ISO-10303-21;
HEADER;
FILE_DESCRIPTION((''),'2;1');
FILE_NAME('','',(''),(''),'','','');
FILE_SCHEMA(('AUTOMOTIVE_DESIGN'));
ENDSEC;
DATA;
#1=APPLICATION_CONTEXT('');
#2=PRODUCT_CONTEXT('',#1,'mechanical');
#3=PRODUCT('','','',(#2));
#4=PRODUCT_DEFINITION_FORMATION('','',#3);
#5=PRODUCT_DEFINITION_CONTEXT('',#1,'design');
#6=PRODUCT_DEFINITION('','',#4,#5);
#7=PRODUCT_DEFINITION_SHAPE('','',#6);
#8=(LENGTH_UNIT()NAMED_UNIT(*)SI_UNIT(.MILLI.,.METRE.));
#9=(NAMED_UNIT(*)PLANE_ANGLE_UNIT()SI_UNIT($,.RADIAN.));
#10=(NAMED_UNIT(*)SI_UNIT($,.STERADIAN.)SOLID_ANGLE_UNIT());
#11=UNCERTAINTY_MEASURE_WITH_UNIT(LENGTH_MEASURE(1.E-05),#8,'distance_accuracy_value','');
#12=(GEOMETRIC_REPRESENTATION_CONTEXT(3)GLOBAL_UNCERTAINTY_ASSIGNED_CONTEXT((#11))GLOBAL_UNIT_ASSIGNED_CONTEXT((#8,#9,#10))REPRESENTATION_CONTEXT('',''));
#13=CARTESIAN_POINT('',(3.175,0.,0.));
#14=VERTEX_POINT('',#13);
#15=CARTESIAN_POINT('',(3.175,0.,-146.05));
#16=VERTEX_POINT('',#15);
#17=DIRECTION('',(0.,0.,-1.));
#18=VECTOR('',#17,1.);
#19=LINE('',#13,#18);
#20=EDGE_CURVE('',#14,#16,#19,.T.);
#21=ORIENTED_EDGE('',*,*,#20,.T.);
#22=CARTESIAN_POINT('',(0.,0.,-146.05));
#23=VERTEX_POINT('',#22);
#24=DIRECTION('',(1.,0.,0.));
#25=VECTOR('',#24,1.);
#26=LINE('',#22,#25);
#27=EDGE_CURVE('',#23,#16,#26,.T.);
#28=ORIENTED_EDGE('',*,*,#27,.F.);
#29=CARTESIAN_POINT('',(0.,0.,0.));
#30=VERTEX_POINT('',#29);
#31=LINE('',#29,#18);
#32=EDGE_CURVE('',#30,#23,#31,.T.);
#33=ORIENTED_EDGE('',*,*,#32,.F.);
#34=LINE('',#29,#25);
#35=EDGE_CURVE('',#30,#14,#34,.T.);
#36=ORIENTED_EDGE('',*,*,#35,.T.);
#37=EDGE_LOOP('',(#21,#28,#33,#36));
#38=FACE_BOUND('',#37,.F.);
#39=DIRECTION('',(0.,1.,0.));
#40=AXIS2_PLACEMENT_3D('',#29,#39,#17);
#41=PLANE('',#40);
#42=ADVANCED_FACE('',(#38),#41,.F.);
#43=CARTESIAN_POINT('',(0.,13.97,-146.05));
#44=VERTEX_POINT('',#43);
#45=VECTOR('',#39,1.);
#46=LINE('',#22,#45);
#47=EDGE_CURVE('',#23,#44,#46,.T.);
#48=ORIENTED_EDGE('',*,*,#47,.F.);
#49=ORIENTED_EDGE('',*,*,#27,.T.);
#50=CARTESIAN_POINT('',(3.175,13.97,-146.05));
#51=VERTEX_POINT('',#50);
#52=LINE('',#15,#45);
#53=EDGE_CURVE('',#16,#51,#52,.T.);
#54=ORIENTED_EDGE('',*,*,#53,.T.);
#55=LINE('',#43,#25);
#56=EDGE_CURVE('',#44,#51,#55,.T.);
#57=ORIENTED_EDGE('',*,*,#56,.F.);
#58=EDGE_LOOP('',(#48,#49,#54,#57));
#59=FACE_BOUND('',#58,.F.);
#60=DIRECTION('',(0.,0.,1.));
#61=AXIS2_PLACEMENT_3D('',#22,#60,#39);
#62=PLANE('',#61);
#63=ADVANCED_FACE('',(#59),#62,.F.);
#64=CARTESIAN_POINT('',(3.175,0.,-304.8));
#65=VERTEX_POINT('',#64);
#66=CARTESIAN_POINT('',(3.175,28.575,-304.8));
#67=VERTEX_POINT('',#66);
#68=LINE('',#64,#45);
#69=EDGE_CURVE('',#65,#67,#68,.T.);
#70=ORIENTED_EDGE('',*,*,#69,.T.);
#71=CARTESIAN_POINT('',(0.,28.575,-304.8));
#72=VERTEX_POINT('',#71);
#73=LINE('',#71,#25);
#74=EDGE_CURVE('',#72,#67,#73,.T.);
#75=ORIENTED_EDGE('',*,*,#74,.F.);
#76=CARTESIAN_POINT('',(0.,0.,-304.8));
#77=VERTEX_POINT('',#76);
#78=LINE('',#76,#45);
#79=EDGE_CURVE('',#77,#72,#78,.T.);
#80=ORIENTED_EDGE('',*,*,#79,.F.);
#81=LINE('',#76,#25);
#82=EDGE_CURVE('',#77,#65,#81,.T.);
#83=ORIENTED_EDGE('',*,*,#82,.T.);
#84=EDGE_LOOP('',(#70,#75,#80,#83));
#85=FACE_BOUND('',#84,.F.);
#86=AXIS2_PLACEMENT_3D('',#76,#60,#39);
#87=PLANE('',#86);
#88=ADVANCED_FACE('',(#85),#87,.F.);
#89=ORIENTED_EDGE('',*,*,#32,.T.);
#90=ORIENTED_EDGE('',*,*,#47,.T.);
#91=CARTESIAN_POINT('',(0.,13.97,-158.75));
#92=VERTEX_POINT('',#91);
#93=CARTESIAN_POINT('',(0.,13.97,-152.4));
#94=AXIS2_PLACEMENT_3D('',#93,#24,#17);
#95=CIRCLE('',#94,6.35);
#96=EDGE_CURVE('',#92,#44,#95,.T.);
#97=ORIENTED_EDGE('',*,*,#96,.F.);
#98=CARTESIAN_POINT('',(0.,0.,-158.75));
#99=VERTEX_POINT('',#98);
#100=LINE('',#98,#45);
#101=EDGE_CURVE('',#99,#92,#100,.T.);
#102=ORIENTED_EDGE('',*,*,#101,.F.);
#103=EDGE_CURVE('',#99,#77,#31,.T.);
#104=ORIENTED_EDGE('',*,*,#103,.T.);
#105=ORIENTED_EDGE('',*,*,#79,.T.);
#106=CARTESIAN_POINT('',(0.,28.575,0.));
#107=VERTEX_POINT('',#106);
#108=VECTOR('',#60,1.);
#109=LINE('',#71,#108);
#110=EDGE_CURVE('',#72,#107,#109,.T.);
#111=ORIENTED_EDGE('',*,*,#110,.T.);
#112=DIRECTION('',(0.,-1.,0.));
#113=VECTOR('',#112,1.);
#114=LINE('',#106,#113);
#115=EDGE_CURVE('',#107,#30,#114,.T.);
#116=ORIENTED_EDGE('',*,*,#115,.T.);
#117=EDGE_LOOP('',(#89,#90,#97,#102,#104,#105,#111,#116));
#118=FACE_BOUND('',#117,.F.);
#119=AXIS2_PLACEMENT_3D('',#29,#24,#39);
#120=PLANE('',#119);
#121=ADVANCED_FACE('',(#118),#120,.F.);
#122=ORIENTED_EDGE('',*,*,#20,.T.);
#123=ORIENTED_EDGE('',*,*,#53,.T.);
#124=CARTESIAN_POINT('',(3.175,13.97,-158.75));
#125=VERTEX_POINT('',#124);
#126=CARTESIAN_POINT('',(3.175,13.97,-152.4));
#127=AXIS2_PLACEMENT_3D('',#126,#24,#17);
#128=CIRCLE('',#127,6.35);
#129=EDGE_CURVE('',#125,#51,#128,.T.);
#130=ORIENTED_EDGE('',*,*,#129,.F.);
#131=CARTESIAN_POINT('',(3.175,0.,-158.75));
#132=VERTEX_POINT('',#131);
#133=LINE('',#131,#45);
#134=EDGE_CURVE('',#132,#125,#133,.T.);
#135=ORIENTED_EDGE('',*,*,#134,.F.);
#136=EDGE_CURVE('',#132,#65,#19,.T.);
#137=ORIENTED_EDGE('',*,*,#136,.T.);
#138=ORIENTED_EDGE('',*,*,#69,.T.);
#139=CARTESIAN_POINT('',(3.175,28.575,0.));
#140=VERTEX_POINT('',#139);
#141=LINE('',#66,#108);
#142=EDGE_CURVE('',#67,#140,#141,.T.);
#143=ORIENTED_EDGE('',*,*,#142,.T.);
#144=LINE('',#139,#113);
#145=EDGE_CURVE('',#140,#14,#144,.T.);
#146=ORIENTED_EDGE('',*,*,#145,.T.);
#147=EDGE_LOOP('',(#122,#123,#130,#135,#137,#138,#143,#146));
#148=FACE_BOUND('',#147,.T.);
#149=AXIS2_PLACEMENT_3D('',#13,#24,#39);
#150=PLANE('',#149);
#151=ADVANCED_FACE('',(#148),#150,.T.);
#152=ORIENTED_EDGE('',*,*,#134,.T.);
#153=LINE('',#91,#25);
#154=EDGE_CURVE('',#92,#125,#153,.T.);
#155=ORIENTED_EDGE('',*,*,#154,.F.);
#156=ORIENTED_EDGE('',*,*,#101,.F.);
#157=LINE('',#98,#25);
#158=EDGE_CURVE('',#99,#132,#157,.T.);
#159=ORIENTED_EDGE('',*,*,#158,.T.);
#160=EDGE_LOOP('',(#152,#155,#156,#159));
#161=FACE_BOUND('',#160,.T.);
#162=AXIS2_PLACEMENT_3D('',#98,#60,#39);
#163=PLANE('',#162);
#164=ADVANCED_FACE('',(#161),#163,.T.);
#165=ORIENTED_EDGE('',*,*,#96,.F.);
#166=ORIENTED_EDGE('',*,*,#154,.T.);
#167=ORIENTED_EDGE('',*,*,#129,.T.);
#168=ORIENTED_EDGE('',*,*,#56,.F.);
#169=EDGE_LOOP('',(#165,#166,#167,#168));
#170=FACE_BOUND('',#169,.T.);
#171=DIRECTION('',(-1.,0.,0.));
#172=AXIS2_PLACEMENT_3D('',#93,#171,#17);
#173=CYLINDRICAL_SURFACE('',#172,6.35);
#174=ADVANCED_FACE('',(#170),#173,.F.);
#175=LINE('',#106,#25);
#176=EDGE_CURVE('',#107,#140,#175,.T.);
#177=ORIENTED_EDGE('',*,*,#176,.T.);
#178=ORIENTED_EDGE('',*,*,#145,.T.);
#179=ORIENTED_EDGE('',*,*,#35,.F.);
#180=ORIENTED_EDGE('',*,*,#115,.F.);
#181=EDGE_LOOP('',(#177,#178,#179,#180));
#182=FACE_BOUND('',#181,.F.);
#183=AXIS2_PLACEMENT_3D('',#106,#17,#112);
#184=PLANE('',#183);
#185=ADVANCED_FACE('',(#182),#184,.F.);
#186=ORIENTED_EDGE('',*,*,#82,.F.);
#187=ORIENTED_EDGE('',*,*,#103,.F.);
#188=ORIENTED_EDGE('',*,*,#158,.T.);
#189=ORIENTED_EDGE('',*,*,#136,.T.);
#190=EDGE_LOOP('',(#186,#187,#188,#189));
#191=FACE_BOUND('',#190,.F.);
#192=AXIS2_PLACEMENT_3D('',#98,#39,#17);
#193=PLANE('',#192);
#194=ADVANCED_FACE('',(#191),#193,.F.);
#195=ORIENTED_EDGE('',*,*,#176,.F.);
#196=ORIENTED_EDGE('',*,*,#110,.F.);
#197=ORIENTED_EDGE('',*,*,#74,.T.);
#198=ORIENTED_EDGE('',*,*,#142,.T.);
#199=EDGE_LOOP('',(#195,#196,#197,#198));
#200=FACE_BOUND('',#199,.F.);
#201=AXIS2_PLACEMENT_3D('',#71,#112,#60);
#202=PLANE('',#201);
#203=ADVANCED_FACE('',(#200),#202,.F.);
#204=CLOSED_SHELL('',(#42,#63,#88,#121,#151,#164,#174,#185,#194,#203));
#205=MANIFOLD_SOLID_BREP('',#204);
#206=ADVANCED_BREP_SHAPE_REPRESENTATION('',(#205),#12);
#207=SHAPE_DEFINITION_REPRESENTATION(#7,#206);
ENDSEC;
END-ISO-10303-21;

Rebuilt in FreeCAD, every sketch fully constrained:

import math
import FreeCAD as App
import Part
import Sketcher
from FreeCAD import Vector
Q = App.Units.Quantity

doc = App.newDocument("Part")
body = doc.addObject("PartDesign::Body", "Body")

# Sketch on YZ plane
sketch1 = doc.addObject("Sketcher::SketchObject", "Sketch")
body.addObject(sketch1)
sketch1.AttachmentSupport = (doc.YZ_Plane, [""])
sketch1.MapMode = "FlatFace"
sketch1.addGeometry(Part.LineSegment(Vector(29, 0, 0), Vector(0, 0, 0)), False)
sketch1.addGeometry(Part.LineSegment(Vector(0, 0, 0), Vector(0, -146, 0)), False)
sketch1.addGeometry(Part.LineSegment(Vector(0, -146, 0), Vector(14, -146, 0)), False)
sketch1.addGeometry(Part.ArcOfCircle(Part.Circle(Vector(14, -152, 0), Vector(0, 0, 1), 6), math.radians(-90), math.radians(90)), False)
sketch1.addGeometry(Part.LineSegment(Vector(14, -159, 0), Vector(0, -159, 0)), False)
sketch1.addGeometry(Part.LineSegment(Vector(0, -159, 0), Vector(0, -305, 0)), False)
sketch1.addGeometry(Part.LineSegment(Vector(0, -305, 0), Vector(29, -305, 0)), False)
sketch1.addGeometry(Part.LineSegment(Vector(29, -305, 0), Vector(29, 0, 0)), False)
sketch1.addConstraint(Sketcher.Constraint("Coincident", 0, 2, 1, 1))
sketch1.addConstraint(Sketcher.Constraint("Coincident", 1, 2, 2, 1))
sketch1.addConstraint(Sketcher.Constraint("Tangent", 2, 2, 3, 2))
sketch1.addConstraint(Sketcher.Constraint("Tangent", 3, 1, 4, 1))
sketch1.addConstraint(Sketcher.Constraint("Coincident", 4, 2, 5, 1))
sketch1.addConstraint(Sketcher.Constraint("Coincident", 5, 2, 6, 1))
sketch1.addConstraint(Sketcher.Constraint("Coincident", 6, 2, 7, 1))
sketch1.addConstraint(Sketcher.Constraint("Coincident", 7, 2, 0, 1))
sketch1.addConstraint(Sketcher.Constraint("Horizontal", 0))
sketch1.addConstraint(Sketcher.Constraint("Vertical", 1))
sketch1.addConstraint(Sketcher.Constraint("Horizontal", 2))
sketch1.addConstraint(Sketcher.Constraint("Horizontal", 4))
sketch1.addConstraint(Sketcher.Constraint("Vertical", 5))
sketch1.addConstraint(Sketcher.Constraint("Horizontal", 6))
sketch1.addConstraint(Sketcher.Constraint("Vertical", 7))
sketch1.addConstraint(Sketcher.Constraint("Coincident", 0, 2, -1, 1))
sketch1.addConstraint(Sketcher.Constraint("PointOnObject", 4, 2, -2))
sketch1.addConstraint(Sketcher.Constraint("Equal", 1, 5))
sketch1.addConstraint(Sketcher.Constraint("DistanceY", 7, 1, 7, 2, Q("12 in")))
sketch1.addConstraint(Sketcher.Constraint("DistanceY", 1, 2, 1, 1, Q("5.75 in")))
sketch1.addConstraint(Sketcher.Constraint("DistanceX", 0, 2, 0, 1, Q("1.125 in")))
sketch1.addConstraint(Sketcher.Constraint("DistanceX", 2, 1, 2, 2, Q("0.55 in")))
pad1 = doc.addObject("PartDesign::Pad", "Pad")
body.addObject(pad1)
pad1.Profile = sketch1
pad1.Length = Q("0.125 in")

doc.recompute()
